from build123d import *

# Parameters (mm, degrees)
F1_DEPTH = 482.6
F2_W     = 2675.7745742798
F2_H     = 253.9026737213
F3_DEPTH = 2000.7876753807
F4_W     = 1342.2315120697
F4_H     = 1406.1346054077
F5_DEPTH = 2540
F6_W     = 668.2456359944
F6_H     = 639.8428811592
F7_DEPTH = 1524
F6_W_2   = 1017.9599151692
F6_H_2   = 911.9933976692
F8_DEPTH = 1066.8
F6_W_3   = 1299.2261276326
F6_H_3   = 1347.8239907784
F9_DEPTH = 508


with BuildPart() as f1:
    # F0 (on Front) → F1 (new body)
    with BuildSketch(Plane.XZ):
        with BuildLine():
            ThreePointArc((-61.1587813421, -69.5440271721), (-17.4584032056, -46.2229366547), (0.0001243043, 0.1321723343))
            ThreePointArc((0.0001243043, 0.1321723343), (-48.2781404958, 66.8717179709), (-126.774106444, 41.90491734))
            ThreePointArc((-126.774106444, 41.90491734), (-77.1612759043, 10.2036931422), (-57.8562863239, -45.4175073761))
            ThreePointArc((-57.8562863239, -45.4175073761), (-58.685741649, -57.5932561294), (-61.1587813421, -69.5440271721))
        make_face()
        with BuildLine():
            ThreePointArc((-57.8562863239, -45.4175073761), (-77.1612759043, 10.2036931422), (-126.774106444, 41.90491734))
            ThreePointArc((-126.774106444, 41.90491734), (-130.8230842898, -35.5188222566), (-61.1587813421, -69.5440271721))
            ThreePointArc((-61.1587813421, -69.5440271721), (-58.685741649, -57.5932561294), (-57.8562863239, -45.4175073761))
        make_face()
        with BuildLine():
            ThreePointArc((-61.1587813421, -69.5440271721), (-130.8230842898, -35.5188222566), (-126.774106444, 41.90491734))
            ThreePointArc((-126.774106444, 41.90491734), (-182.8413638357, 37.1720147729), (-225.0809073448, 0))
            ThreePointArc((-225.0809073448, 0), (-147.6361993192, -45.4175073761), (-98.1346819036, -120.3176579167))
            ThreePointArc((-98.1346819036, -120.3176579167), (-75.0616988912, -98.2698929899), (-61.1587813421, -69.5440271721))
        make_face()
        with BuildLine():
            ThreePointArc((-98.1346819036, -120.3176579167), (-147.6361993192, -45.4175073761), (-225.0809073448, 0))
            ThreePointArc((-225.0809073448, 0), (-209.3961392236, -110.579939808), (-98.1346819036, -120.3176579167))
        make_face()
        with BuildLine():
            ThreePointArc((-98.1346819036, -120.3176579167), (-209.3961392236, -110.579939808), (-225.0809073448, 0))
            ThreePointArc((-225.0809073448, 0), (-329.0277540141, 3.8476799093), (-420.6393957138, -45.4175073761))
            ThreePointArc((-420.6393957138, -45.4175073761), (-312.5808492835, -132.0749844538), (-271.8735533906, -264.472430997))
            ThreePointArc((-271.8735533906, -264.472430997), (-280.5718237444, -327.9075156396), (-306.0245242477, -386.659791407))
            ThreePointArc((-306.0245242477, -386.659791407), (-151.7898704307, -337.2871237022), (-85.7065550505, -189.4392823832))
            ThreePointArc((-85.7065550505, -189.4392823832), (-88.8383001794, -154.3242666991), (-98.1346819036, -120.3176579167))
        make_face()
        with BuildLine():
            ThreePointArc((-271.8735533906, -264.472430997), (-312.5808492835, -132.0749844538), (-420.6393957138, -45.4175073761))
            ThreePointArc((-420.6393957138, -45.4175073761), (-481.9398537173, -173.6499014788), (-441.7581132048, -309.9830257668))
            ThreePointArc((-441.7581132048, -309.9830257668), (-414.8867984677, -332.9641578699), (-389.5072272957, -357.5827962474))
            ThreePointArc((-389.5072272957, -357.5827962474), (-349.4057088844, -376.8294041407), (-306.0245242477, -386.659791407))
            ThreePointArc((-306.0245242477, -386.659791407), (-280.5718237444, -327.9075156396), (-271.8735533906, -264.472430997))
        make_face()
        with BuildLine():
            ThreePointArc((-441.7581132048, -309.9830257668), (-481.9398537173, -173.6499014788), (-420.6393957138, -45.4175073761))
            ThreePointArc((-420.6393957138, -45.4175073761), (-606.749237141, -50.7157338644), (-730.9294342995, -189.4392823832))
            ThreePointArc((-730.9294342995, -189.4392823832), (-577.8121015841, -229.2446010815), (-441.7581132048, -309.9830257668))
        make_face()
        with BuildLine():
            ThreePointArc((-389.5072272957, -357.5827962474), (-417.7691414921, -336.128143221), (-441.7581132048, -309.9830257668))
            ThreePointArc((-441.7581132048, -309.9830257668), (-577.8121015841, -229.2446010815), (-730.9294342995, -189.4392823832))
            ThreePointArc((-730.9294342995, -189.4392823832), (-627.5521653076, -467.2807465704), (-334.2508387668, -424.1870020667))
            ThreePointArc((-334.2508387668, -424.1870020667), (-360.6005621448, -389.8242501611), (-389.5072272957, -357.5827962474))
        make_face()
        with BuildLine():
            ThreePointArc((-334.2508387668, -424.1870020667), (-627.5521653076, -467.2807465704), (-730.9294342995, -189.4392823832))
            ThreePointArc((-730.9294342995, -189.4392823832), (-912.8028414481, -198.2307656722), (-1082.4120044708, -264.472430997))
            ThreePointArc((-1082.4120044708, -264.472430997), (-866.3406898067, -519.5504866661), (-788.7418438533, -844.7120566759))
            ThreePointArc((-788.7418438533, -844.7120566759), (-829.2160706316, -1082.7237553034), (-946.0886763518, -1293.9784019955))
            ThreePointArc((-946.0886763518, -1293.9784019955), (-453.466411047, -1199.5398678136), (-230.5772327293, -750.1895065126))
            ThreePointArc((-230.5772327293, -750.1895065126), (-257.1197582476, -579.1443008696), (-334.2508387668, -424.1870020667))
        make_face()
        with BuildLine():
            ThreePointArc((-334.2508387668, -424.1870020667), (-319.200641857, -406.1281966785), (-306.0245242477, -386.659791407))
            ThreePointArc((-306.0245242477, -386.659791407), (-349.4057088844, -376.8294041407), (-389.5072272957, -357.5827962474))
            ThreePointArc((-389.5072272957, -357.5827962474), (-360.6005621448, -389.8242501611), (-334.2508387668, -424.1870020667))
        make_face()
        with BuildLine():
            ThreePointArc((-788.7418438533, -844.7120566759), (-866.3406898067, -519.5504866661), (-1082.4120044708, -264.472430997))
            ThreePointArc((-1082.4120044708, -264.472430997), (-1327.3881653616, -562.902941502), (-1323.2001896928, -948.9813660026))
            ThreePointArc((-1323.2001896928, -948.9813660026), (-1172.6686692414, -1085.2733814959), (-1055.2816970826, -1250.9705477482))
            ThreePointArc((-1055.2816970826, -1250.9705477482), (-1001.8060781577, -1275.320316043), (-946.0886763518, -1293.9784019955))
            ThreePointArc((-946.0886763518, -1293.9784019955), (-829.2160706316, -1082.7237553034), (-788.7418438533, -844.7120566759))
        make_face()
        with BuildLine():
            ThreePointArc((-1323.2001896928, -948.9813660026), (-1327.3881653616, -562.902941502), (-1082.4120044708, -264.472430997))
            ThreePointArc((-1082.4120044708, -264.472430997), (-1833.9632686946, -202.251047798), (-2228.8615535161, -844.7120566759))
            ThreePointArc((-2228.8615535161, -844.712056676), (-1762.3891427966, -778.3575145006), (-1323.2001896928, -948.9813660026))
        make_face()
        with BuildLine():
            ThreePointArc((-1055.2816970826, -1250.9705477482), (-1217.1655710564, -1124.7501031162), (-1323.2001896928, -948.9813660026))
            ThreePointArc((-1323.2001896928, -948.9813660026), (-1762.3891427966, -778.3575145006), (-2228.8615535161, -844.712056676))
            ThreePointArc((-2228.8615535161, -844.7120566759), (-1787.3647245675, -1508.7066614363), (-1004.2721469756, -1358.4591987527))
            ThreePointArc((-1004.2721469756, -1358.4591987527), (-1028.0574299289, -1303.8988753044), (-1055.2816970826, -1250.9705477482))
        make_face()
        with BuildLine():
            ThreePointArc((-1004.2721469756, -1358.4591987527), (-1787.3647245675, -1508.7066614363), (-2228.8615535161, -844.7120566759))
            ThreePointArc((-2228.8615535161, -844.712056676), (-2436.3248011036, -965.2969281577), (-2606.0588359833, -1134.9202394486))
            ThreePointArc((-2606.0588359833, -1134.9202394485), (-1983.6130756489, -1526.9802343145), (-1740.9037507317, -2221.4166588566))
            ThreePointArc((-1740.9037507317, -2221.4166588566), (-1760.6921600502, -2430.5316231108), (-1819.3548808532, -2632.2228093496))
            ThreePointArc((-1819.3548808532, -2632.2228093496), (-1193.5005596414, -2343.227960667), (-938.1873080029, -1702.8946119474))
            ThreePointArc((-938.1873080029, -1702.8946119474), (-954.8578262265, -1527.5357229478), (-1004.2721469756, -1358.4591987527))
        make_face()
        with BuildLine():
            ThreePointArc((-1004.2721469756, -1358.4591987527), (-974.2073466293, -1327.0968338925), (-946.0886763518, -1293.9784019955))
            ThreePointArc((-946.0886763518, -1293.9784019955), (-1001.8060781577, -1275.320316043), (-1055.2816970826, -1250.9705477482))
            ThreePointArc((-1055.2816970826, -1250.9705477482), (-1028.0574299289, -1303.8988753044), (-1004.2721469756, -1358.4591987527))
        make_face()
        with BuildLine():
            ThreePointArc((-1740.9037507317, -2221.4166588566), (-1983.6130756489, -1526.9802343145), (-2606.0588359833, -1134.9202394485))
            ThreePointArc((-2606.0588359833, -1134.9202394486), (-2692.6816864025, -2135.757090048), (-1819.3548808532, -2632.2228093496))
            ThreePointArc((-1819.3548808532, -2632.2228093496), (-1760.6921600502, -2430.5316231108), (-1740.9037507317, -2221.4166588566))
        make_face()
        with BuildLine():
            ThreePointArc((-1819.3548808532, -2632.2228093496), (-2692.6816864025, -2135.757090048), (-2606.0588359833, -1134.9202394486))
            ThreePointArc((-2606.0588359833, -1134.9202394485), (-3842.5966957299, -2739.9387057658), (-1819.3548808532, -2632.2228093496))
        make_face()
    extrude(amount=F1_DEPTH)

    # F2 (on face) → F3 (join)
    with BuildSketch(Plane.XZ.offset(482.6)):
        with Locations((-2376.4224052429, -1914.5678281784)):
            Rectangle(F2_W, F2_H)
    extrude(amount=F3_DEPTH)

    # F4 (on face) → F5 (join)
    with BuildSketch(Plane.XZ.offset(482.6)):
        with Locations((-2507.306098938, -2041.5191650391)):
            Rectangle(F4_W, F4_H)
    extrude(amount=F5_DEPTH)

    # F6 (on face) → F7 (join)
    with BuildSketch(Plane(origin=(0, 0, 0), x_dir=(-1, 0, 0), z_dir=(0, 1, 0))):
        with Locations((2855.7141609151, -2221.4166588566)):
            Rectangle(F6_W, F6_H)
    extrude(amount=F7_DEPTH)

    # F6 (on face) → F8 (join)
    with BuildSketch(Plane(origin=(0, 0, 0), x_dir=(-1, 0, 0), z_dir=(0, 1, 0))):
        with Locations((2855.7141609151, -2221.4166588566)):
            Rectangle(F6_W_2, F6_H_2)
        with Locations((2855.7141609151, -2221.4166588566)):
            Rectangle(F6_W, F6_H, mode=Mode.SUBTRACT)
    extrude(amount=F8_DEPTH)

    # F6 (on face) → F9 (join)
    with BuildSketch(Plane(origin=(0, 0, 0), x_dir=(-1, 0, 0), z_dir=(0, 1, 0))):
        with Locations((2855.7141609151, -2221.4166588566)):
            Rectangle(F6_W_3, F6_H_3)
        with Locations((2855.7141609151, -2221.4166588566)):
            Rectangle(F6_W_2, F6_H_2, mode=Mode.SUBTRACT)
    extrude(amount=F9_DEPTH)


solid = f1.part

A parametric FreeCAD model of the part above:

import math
import FreeCAD as App
import Part
import Sketcher

V = App.Vector
Q = App.Units.Quantity


def add_polygon(sketch, points):
    """Adds a closed chain of lines whose ends are joined by coincident constraints."""
    first, n = sketch.GeometryCount, len(points)
    for a, b in zip(points, points[1:] + points[:1]):
        sketch.addGeometry(Part.LineSegment(App.Vector(*a, 0), App.Vector(*b, 0)), False)
    for i in range(n):
        sketch.addConstraint(Sketcher.Constraint("Coincident", first + i, 2, first + (i + 1) % n, 1))

doc = App.newDocument("Part")
body = doc.addObject("PartDesign::Body", "Body")

sketch1 = doc.addObject("Sketcher::SketchObject", "Sketch")
body.addObject(sketch1)
sketch1.AttachmentSupport = (doc.XZ_Plane, [""])
sketch1.MapMode = "FlatFace"
sketch1.addGeometry([
    Part.ArcOfCircle(Part.Circle(V(-1509, -845, 0), V(0, 0, 1), 720), math.radians(-45.52), math.radians(-38.6)),
    Part.ArcOfCircle(Part.Circle(V(-795, -750, 0), V(0, 0, 1), 564), math.radians(-106), math.radians(35)),
    Part.ArcOfCircle(Part.Circle(V(-508, -264, 0), V(0, 0, 1), 236), math.radians(-42.67), math.radians(-31.23)),
    Part.ArcOfCircle(Part.Circle(V(-284, -189, 0), V(0, 0, 1), 198), math.radians(-96), math.radians(0)),
    Part.ArcOfCircle(Part.Circle(V(-284, -189, 0), V(0, 0, 1), 198), math.radians(0), math.radians(20)),
    Part.ArcOfCircle(Part.Circle(V(-148, -45, 0), V(0, 0, 1), 90), math.radians(-57), math.radians(-16)),
    Part.ArcOfCircle(Part.Circle(V(-70, 0, 0), V(0, 0, 1), 70), math.radians(-83), math.radians(144)),
    Part.ArcOfCircle(Part.Circle(V(-148, -45, 0), V(0, 0, 1), 90), math.radians(77), math.radians(150)),
    Part.ArcOfCircle(Part.Circle(V(-284, -189, 0), V(0, 0, 1), 198), math.radians(73), math.radians(133)),
    Part.ArcOfCircle(Part.Circle(V(-508, -264, 0), V(0, 0, 1), 236), math.radians(68), math.radians(161)),
    Part.ArcOfCircle(Part.Circle(V(-795, -750, 0), V(0, 0, 1), 564), math.radians(83), math.radians(121)),
    Part.ArcOfCircle(Part.Circle(V(-1509, -845, 0), V(0, 0, 1), 720), math.radians(54), math.radians(180)),
    Part.ArcOfCircle(Part.Circle(V(-1869, -1703, 0), V(0, 0, 1), 931), math.radians(113), math.radians(142)),
    Part.ArcOfCircle(Part.Circle(V(-2856, -2221, 0), V(0, 0, 1), 1115), math.radians(77), math.radians(338)),
    Part.ArcOfCircle(Part.Circle(V(-1869, -1703, 0), V(0, 0, 1), 931), math.radians(-87), math.radians(22)),
    Part.ArcOfCircle(Part.Circle(V(-1869, -1703, 0), V(0, 0, 1), 931), math.radians(29), math.radians(54)),
    Part.ArcOfCircle(Part.Circle(V(-795, -750, 0), V(0, 0, 1), 564), math.radians(-159), math.radians(-117)),
    Part.ArcOfCircle(Part.Circle(V(-795, -750, 0), V(0, 0, 1), 564), math.radians(44.08), math.radians(51.26)),
    Part.ArcOfCircle(Part.Circle(V(-284, -189, 0), V(0, 0, 1), 198), math.radians(-143), math.radians(-122)),
], False)
sketch1.addConstraint([
    Sketcher.Constraint("Coincident", 0, 2, 1, 1),
    Sketcher.Constraint("Coincident", 1, 2, 2, 1),
    Sketcher.Constraint("Coincident", 2, 2, 3, 1),
    Sketcher.Constraint("Tangent", 3, 2, 4, 1),
    Sketcher.Constraint("Coincident", 4, 2, 5, 1),
    Sketcher.Constraint("Coincident", 5, 2, 6, 1),
    Sketcher.Constraint("Coincident", 6, 2, 7, 1),
    Sketcher.Constraint("Coincident", 7, 2, 8, 1),
    Sketcher.Constraint("Coincident", 8, 2, 9, 1),
    Sketcher.Constraint("Coincident", 9, 2, 10, 1),
    Sketcher.Constraint("Coincident", 10, 2, 11, 1),
    Sketcher.Constraint("Coincident", 11, 2, 12, 1),
    Sketcher.Constraint("Coincident", 12, 2, 13, 1),
    Sketcher.Constraint("Coincident", 13, 2, 14, 1),
    Sketcher.Constraint("Coincident", 14, 2, 0, 1),
    Sketcher.Constraint("Coincident", 15, 1, 16, 2),
    Sketcher.Constraint("Coincident", 16, 1, 15, 2),
    Sketcher.Constraint("Coincident", 17, 1, 18, 2),
    Sketcher.Constraint("Coincident", 18, 1, 17, 2),
    Sketcher.Constraint("Coincident", 7, 3, 5, 3),
    Sketcher.Constraint("Coincident", 8, 3, 3, 3),
    Sketcher.Constraint("Coincident", 9, 3, 2, 3),
    Sketcher.Constraint("Coincident", 10, 3, 1, 3),
    Sketcher.Constraint("Coincident", 11, 3, 0, 3),
    Sketcher.Constraint("Coincident", 14, 3, 12, 3),
    Sketcher.Constraint("Coincident", 15, 3, 12, 3),
    Sketcher.Constraint("Coincident", 16, 3, 1, 3),
    Sketcher.Constraint("Coincident", 17, 3, 1, 3),
    Sketcher.Constraint("Coincident", 18, 3, 3, 3),
    Sketcher.Constraint("Equal", 3, 4),
    Sketcher.Constraint("Equal", 5, 7),
    Sketcher.Constraint("Equal", 4, 8),
    Sketcher.Constraint("Equal", 2, 9),
    Sketcher.Constraint("Equal", 1, 10),
    Sketcher.Constraint("Equal", 0, 11),
    Sketcher.Constraint("Equal", 12, 14),
    Sketcher.Constraint("Equal", 14, 15),
    Sketcher.Constraint("Equal", 10, 16),
    Sketcher.Constraint("Equal", 16, 17),
    Sketcher.Constraint("Equal", 8, 18),
    Sketcher.Constraint("PointOnObject", 7, 2, -1),
    Sketcher.Constraint("Horizontal", 18, 3, 3, 2),
    Sketcher.Constraint("Horizontal", 7, 3, 8, 2),
    Sketcher.Constraint("Horizontal", 3, 2, 9, 2),
    Sketcher.Constraint("Horizontal", 9, 3, 10, 2),
    Sketcher.Constraint("Radius", 6, 70.26928),
    Sketcher.Constraint("Radius", 12, 930.644318),
    Sketcher.Constraint("Radius", 13, 1114.81041),
    Sketcher.Constraint("DistanceY", -1, 1, 6, 2, Q("1.6497999 in")),
    Sketcher.Constraint("Radius", 0, 720.059855),
    Sketcher.Constraint("Radius", 1, 564.395577),
    Sketcher.Constraint("Radius", 2, 235.660063),
    Sketcher.Constraint("Radius", 3, 198.431242),
    Sketcher.Constraint("Radius", 5, 89.779913),
    Sketcher.Constraint("DistanceX", 0, 3, -1, 1, 1508.801699),
    Sketcher.Constraint("DistanceX", 5, 3, -1, 1, 147.636199),
    Sketcher.Constraint("DistanceX", 0, 3, 3, 3, 1224.663901),
    Sketcher.Constraint("DistanceY", 1, 3, 5, 3, 704.771999),
    Sketcher.Constraint("DistanceX", 3, 2, 6, 3, 15.437399),
    Sketcher.Constraint("DistanceX", 7, 2, 6, 2, 98.306801),
    Sketcher.Constraint("DistanceX", 1, 3, -1, 1, 794.97281),
    Sketcher.Constraint("DistanceY", 12, 3, -1, 1, 1702.894612),
    Sketcher.Constraint("DistanceX", 13, 3, -1, 1, 2855.714161),
    Sketcher.Constraint("DistanceY", 13, 3, -1, 1, 2221.416659),
    Sketcher.Constraint("DistanceX", 12, 3, 2, 3, 1361.29801),
])
pad1 = doc.addObject("PartDesign::Pad", "Pad")
body.addObject(pad1)
pad1.Profile = sketch1
pad1.Length = Q("19 in")

sketch2 = doc.addObject("Sketcher::SketchObject", "Sketch001")
body.addObject(sketch2)
sketch2.AttachmentSupport = (doc.XZ_Plane, [""])
sketch2.MapMode = "FlatFace"
sketch2.AttachmentOffset = App.Placement(V(0, 0, 19 * 25.4), App.Rotation())
add_polygon(sketch2, [(-3714, -1788), (-3714, -2042), (-1039, -2042), (-1039, -1788)])
sketch2.addConstraint([
    Sketcher.Constraint("Vertical", 0),
    Sketcher.Constraint("Horizontal", 1),
    Sketcher.Constraint("Vertical", 2),
    Sketcher.Constraint("Horizontal", 3),
    Sketcher.Constraint("DistanceX", 1, 1, 1, 2, 2675.774574),
    Sketcher.Constraint("DistanceY", 0, 2, 0, 1, 253.902674),
    Sketcher.Constraint("DistanceX", 1, 2, -1, 1, 1038.535118),
    Sketcher.Constraint("DistanceY", 2, 2, -1, 1, 1787.616491),
])
pad2 = doc.addObject("PartDesign::Pad", "Pad001")
body.addObject(pad2)
pad2.Profile = sketch2
pad2.Length = 2000.787675

sketch3 = doc.addObject("Sketcher::SketchObject", "Sketch002")
body.addObject(sketch3)
sketch3.AttachmentSupport = (doc.XZ_Plane, [""])
sketch3.MapMode = "FlatFace"
sketch3.AttachmentOffset = App.Placement(V(0, 0, 19 * 25.4), App.Rotation())
add_polygon(sketch3, [(-3178, -1338), (-3178, -2745), (-1836, -2745), (-1836, -1338)])
sketch3.addConstraint([
    Sketcher.Constraint("Vertical", 0),
    Sketcher.Constraint("Horizontal", 1),
    Sketcher.Constraint("Vertical", 2),
    Sketcher.Constraint("Horizontal", 3),
    Sketcher.Constraint("DistanceX", 1, 1, 1, 2, 1342.231512),
    Sketcher.Constraint("DistanceY", 0, 2, 0, 1, 1406.134605),
    Sketcher.Constraint("DistanceX", 0, 2, -1, 1, 3178.421855),
    Sketcher.Constraint("DistanceY", 0, 2, -1, 1, 2744.586468),
])
pad3 = doc.addObject("PartDesign::Pad", "Pad002")
body.addObject(pad3)
pad3.Profile = sketch3
pad3.Length = Q("100 in")

sketch4 = doc.addObject("Sketcher::SketchObject", "Sketch003")
body.addObject(sketch4)
sketch4.AttachmentSupport = (doc.XZ_Plane, [""])
sketch4.MapMode = "FlatFace"
add_polygon(sketch4, [(-2522, -1901), (-2522, -2541), (-3190, -2541), (-3190, -1901)])
sketch4.addConstraint([
    Sketcher.Constraint("Vertical", 0),
    Sketcher.Constraint("Horizontal", 1),
    Sketcher.Constraint("Vertical", 2),
    Sketcher.Constraint("Horizontal", 3),
    Sketcher.Constraint("DistanceY", 0, 2, 0, 1, 639.842881),
    Sketcher.Constraint("DistanceY", 0, 2, -1, 1, 2541.338099),
    Sketcher.Constraint("DistanceX", 1, 2, 1, 1, 668.245636),
    Sketcher.Constraint("DistanceX", 1, 2, -1, 1, 3189.836979),
])
pad4 = doc.addObject("PartDesign::Pad", "Pad003")
body.addObject(pad4)
pad4.Profile = sketch4
pad4.Length = Q("60 in")
pad4.Reversed = True

sketch5 = doc.addObject("Sketcher::SketchObject", "Sketch004")
body.addObject(sketch5)
sketch5.AttachmentSupport = (doc.XZ_Plane, [""])
sketch5.MapMode = "FlatFace"
add_polygon(sketch5, [(-2347, -1765), (-2347, -2677), (-3365, -2677), (-3365, -1765)])
add_polygon(sketch5, [(-3190, -2541), (-2522, -2541), (-2522, -1901), (-3190, -1901)])
sketch5.addConstraint([
    Sketcher.Constraint("Vertical", 0),
    Sketcher.Constraint("Horizontal", 1),
    Sketcher.Constraint("Vertical", 2),
    Sketcher.Constraint("Horizontal", 3),
    Sketcher.Constraint("Horizontal", 4),
    Sketcher.Constraint("Vertical", 5),
    Sketcher.Constraint("Horizontal", 6),
    Sketcher.Constraint("Vertical", 7),
    Sketcher.Constraint("DistanceY", 5, 1, 5, 2, 639.842881),
    Sketcher.Constraint("DistanceY", 4, 2, -1, 1, 2541.338099),
    Sketcher.Constraint("DistanceX", 1, 2, 1, 1, 1017.959915),
    Sketcher.Constraint("DistanceX", 4, 1, 4, 2, 668.245636),
    Sketcher.Constraint("DistanceY", 0, 2, 0, 1, 911.993398),
    Sketcher.Constraint("DistanceX", 1, 2, -1, 1, 3364.694119),
    Sketcher.Constraint("DistanceY", 2, 2, -1, 1, 1765.41996),
    Sketcher.Constraint("DistanceX", 6, 2, -1, 1, 3189.836979),
])
pad5 = doc.addObject("PartDesign::Pad", "Pad004")
body.addObject(pad5)
pad5.Profile = sketch5
pad5.Length = Q("42 in")
pad5.Reversed = True

sketch6 = doc.addObject("Sketcher::SketchObject", "Sketch005")
body.addObject(sketch6)
sketch6.AttachmentSupport = (doc.XZ_Plane, [""])
sketch6.MapMode = "FlatFace"
add_polygon(sketch6, [(-2206, -1548), (-2206, -2895), (-3505, -2895), (-3505, -1548)])
add_polygon(sketch6, [(-3365, -2677), (-2347, -2677), (-2347, -1765), (-3365, -1765)])
sketch6.addConstraint([
    Sketcher.Constraint("Vertical", 0),
    Sketcher.Constraint("Horizontal", 1),
    Sketcher.Constraint("Vertical", 2),
    Sketcher.Constraint("Horizontal", 3),
    Sketcher.Constraint("Horizontal", 4),
    Sketcher.Constraint("Vertical", 5),
    Sketcher.Constraint("Horizontal", 6),
    Sketcher.Constraint("Vertical", 7),
    Sketcher.Constraint("DistanceY", 0, 2, 0, 1, 1347.823991),
    Sketcher.Constraint("DistanceX", 1, 2, 1, 1, 1299.226128),
    Sketcher.Constraint("DistanceX", 4, 1, 4, 2, 1017.959915),
    Sketcher.Constraint("DistanceY", 5, 1, 5, 2, 911.993398),
    Sketcher.Constraint("DistanceY", 5, 2, -1, 1, 1765.41996),
    Sketcher.Constraint("DistanceX", 6, 2, -1, 1, 3364.694119),
    Sketcher.Constraint("DistanceX", 1, 2, 4, 2, 1158.593021),
    Sketcher.Constraint("DistanceY", 0, 2, -1, 1, 2895.328654),
])
pad6 = doc.addObject("PartDesign::Pad", "Pad005")
body.addObject(pad6)
pad6.Profile = sketch6
pad6.Length = Q("20 in")
pad6.Reversed = True

doc.recompute()
